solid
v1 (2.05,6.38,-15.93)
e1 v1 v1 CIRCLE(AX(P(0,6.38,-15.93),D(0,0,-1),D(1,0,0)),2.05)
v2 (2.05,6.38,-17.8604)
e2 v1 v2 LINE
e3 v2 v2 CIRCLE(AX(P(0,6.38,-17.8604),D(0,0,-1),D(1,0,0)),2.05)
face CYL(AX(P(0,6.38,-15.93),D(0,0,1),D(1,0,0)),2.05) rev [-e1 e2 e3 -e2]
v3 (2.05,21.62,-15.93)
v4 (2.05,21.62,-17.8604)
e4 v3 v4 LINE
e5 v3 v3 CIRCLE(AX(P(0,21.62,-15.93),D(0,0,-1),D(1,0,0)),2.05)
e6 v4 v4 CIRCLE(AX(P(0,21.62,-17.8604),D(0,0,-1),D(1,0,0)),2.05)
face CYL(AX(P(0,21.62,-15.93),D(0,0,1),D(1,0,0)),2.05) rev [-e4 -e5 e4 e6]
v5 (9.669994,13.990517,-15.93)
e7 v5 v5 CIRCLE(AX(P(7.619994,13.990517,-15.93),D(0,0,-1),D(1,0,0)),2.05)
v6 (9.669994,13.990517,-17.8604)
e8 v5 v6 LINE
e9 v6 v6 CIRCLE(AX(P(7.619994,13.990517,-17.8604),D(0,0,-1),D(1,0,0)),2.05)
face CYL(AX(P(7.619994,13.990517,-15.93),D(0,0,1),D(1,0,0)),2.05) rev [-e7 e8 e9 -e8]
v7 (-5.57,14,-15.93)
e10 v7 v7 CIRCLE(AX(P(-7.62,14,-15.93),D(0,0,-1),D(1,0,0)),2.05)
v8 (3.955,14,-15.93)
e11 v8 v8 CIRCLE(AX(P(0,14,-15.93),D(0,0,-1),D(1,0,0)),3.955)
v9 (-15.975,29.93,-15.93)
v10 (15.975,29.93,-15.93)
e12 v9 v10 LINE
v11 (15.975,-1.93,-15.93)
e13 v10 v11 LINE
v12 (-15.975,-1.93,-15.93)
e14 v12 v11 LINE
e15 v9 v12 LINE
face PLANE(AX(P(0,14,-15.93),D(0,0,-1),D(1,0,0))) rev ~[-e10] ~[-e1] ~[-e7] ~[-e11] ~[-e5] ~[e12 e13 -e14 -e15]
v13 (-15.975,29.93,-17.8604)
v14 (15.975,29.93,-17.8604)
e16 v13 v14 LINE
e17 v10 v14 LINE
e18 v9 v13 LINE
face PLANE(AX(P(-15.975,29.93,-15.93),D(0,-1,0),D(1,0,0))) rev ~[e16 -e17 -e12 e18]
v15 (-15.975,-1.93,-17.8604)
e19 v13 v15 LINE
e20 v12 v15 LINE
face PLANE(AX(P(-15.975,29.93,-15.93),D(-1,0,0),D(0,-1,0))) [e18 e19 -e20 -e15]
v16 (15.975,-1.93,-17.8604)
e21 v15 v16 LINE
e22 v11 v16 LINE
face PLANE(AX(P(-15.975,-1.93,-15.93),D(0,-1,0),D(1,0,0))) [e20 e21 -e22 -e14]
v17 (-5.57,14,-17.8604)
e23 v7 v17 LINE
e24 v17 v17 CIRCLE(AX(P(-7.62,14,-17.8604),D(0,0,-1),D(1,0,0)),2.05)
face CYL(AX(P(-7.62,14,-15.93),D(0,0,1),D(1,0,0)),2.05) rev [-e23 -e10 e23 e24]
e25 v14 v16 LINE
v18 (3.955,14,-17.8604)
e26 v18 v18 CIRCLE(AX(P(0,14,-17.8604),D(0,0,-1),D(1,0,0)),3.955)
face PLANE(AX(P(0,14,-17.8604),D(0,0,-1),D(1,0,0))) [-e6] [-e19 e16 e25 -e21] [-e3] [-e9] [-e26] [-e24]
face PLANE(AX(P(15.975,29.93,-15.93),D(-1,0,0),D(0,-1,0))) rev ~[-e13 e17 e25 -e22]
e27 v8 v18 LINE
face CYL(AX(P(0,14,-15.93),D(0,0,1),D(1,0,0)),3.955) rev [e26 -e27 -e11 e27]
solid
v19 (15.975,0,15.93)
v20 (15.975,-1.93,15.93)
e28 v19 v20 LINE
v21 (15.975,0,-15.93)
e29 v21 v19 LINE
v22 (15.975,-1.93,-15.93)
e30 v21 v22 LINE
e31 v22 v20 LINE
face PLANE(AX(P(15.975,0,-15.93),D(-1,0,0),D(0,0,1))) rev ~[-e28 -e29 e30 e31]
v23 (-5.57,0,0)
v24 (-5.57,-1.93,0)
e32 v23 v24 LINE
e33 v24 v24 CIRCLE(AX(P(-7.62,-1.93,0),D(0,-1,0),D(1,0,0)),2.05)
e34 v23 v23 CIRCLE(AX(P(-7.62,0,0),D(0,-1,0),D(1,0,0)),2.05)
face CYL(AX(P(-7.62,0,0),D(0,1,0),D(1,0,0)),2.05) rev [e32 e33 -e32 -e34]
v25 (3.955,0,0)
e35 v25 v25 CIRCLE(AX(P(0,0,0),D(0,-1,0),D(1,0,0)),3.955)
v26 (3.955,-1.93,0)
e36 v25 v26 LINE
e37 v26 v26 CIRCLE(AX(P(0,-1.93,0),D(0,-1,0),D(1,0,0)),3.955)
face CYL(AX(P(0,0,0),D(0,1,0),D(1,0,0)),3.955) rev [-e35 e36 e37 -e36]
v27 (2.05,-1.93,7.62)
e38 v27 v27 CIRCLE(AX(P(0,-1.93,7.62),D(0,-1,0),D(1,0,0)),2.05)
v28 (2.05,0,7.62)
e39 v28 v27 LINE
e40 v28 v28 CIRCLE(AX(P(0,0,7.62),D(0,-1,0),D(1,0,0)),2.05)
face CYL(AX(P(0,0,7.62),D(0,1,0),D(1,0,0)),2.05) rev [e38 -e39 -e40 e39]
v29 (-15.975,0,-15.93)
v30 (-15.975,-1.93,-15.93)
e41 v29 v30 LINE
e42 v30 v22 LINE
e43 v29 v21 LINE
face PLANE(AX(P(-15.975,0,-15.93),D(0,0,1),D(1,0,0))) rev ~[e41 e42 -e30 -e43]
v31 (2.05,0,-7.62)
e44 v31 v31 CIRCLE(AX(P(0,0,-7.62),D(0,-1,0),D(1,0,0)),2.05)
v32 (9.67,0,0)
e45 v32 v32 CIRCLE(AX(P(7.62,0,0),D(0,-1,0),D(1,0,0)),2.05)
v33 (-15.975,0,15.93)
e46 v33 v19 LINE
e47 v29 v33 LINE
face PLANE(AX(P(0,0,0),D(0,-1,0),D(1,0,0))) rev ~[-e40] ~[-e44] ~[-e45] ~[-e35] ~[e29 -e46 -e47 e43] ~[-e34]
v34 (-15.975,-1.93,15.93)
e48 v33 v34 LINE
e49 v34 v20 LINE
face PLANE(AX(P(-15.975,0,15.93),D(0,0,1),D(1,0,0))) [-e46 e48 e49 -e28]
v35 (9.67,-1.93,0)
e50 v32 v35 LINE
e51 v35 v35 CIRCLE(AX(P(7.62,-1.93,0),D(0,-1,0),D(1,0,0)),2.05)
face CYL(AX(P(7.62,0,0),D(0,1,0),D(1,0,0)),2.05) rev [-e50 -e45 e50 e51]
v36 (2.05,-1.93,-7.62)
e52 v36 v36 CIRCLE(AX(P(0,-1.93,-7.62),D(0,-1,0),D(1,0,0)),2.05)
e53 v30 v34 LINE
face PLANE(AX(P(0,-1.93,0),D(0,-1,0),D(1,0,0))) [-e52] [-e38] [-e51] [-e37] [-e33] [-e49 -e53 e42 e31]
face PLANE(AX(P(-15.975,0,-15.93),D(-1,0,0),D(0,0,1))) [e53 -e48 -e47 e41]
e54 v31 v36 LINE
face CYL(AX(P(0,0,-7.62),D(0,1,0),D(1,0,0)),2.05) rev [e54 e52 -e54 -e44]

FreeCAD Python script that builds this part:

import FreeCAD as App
import Part
import Sketcher
Q = App.Units.Quantity


def add_polygon(sketch, points):
    """Adds a closed chain of lines whose ends are joined by coincident constraints."""
    first, n = sketch.GeometryCount, len(points)
    for a, b in zip(points, points[1:] + points[:1]):
        sketch.addGeometry(Part.LineSegment(App.Vector(*a, 0), App.Vector(*b, 0)), False)
    for i in range(n):
        sketch.addConstraint(Sketcher.Constraint("Coincident", first + i, 2, first + (i + 1) % n, 1))

doc = App.newDocument("Part")
body = doc.addObject("PartDesign::Body", "Body")

# Sketch on XZ plane
sketch1 = body.newObject("Sketcher::SketchObject", "Sketch")
sketch1.AttachmentSupport = (doc.getObject("XZ_Plane"), [""])
sketch1.MapMode = "FlatFace"
add_polygon(sketch1, [(-15.975, 15.93), (-15.975, -15.93), (15.975, -15.93), (15.975, 15.93)])  # lines 0-3
sketch1.addGeometry(Part.Circle(App.Vector(0, -7.62, 0), App.Vector(0, 0, 1), 2.05), False)  # 4
sketch1.addGeometry(Part.Circle(App.Vector(-7.62, 0, 0), App.Vector(0, 0, 1), 2.05), False)  # 5
sketch1.addGeometry(Part.Circle(App.Vector(0, 0, 0), App.Vector(0, 0, 1), 3.955), False)  # 6
sketch1.addGeometry(Part.Circle(App.Vector(7.62, 0, 0), App.Vector(0, 0, 1), 2.05), False)  # 7
sketch1.addGeometry(Part.Circle(App.Vector(0, 7.62, 0), App.Vector(0, 0, 1), 2.05), False)  # 8
sketch1.addConstraint(Sketcher.Constraint("Vertical", 0))
sketch1.addConstraint(Sketcher.Constraint("Horizontal", 1))
sketch1.addConstraint(Sketcher.Constraint("Vertical", 2))
sketch1.addConstraint(Sketcher.Constraint("Horizontal", 3))
sketch1.addConstraint(Sketcher.Constraint("Coincident", 6, 3, -1, 1))
sketch1.addConstraint(Sketcher.Constraint("Equal", 4, 5))
sketch1.addConstraint(Sketcher.Constraint("Equal", 5, 7))
sketch1.addConstraint(Sketcher.Constraint("Equal", 7, 8))
sketch1.addConstraint(Sketcher.Constraint("Symmetric", 5, 3, 7, 3, -1, 1))
sketch1.addConstraint(Sketcher.Constraint("Symmetric", 4, 3, 8, 3, -1, 1))
sketch1.addConstraint(Sketcher.Constraint("Symmetric", 0, 2, 2, 2, -1, 1))
sketch1.addConstraint(Sketcher.Constraint("PointOnObject", 4, 3, -2))
sketch1.addConstraint(Sketcher.Constraint("PointOnObject", 5, 3, -1))
sketch1.addConstraint(Sketcher.Constraint("Diameter", 4, Q("4.1 mm")))
sketch1.addConstraint(Sketcher.Constraint("Diameter", 6, Q("7.91 mm")))
sketch1.addConstraint(Sketcher.Constraint("DistanceX", 1, 1, 1, 2, Q("31.95 mm")))
sketch1.addConstraint(Sketcher.Constraint("DistanceY", 0, 2, 0, 1, Q("31.86 mm")))
sketch1.addConstraint(Sketcher.Constraint("DistanceY", 4, 3, -1, 1, Q("7.62 mm")))
sketch1.addConstraint(Sketcher.Constraint("DistanceX", 5, 3, -1, 1, Q("7.62 mm")))
pad1 = body.newObject("PartDesign::Pad", "Pad")
pad1.Profile = sketch1
pad1.Length = 1.93
body2 = doc.addObject("PartDesign::Body", "Body001")

# Sketch on XY plane
sketch2 = body2.newObject("Sketcher::SketchObject", "Sketch001")
sketch2.AttachmentSupport = (doc.getObject("XY_Plane001"), [""])
sketch2.MapMode = "FlatFace"
sketch2.AttachmentOffset = App.Placement(App.Vector(0, 0, -15.93), App.Rotation())
add_polygon(sketch2, [(-15.975, -1.93), (-15.975, 29.93), (15.975, 29.93), (15.975, -1.93)])  # lines 0-3
sketch2.addGeometry(Part.Circle(App.Vector(0, 21.62, 0), App.Vector(0, 0, 1), 2.05), False)  # 4
sketch2.addGeometry(Part.Circle(App.Vector(-7.62, 14, 0), App.Vector(0, 0, 1), 2.05), False)  # 5
sketch2.addGeometry(Part.Circle(App.Vector(0, 14, 0), App.Vector(0, 0, 1), 3.955), False)  # 6
sketch2.addGeometry(Part.Circle(App.Vector(7.619994, 13.990517, 0), App.Vector(0, 0, 1), 2.05), False)  # 7
sketch2.addGeometry(Part.Circle(App.Vector(0, 6.38, 0), App.Vector(0, 0, 1), 2.05), False)  # 8
sketch2.addConstraint(Sketcher.Constraint("Vertical", 0))
sketch2.addConstraint(Sketcher.Constraint("Horizontal", 1))
sketch2.addConstraint(Sketcher.Constraint("Vertical", 2))
sketch2.addConstraint(Sketcher.Constraint("Horizontal", 3))
sketch2.addConstraint(Sketcher.Constraint("Equal", 4, 5))
sketch2.addConstraint(Sketcher.Constraint("Equal", 5, 7))
sketch2.addConstraint(Sketcher.Constraint("Equal", 7, 8))
sketch2.addConstraint(Sketcher.Constraint("PointOnObject", 4, 3, -2))
sketch2.addConstraint(Sketcher.Constraint("PointOnObject", 6, 3, -2))
sketch2.addConstraint(Sketcher.Constraint("PointOnObject", 8, 3, -2))
sketch2.addConstraint(Sketcher.Constraint("Horizontal", 5, 3, 6, 3))
sketch2.addConstraint(Sketcher.Constraint("Diameter", 4, Q("4.1 mm")))
sketch2.addConstraint(Sketcher.Constraint("Diameter", 6, Q("7.91 mm")))
sketch2.addConstraint(Sketcher.Constraint("DistanceY", -1, 1, 5, 3, Q("14 mm")))
sketch2.addConstraint(Sketcher.Constraint("DistanceX", 1, 1, 1, 2, Q("31.95 mm")))
sketch2.addConstraint(Sketcher.Constraint("DistanceY", 0, 1, 0, 2, Q("31.86 mm")))
sketch2.addConstraint(Sketcher.Constraint("DistanceY", -1, 1, 4, 3, Q("21.62 mm")))
sketch2.addConstraint(Sketcher.Constraint("DistanceX", 5, 3, -1, 1, Q("7.62 mm")))
sketch2.addConstraint(Sketcher.Constraint("DistanceY", -1, 1, 8, 3, Q("6.38 mm")))
sketch2.addConstraint(Sketcher.Constraint("DistanceY", -1, 1, 0, 2, Q("29.93 mm")))
sketch2.addConstraint(Sketcher.Constraint("DistanceX", 0, 2, -1, 1, Q("15.975 mm")))
sketch2.addConstraint(Sketcher.Constraint("DistanceX", -1, 1, 7, 3, Q("7.619994 mm")))
sketch2.addConstraint(Sketcher.Constraint("DistanceY", -1, 1, 7, 3, Q("13.990517 mm")))
pad2 = body2.newObject("PartDesign::Pad", "Pad001")
pad2.Profile = sketch2
pad2.Length = 1.9304
pad2.Reversed = True

doc.recompute()
